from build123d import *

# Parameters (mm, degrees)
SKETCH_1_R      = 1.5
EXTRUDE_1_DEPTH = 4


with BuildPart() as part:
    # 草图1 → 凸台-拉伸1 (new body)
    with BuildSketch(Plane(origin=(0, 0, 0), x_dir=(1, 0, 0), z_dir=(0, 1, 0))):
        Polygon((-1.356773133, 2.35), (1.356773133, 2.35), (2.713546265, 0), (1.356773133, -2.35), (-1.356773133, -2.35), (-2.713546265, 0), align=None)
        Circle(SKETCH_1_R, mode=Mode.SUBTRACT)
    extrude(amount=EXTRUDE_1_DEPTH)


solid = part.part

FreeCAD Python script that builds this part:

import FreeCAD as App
import Part
import Sketcher
Q = App.Units.Quantity

doc = App.newDocument("Part")
body = doc.addObject("PartDesign::Body", "Body")

# Sketch on XZ plane
sketch1 = doc.addObject("Sketcher::SketchObject", "Sketch")
body.addObject(sketch1)
sketch1.AttachmentSupport = (doc.XZ_Plane, [""])
sketch1.MapMode = "FlatFace"
sketch1.addGeometry([
    Part.LineSegment(App.Vector(1.356773, -2.35, 0), App.Vector(-1.356773, -2.35, 0)),  # 0
    Part.LineSegment(App.Vector(-1.356773, -2.35, 0), App.Vector(-2.713546, 0, 0)),  # 1
    Part.LineSegment(App.Vector(-2.713546, 0, 0), App.Vector(-1.356773, 2.35, 0)),  # 2
    Part.LineSegment(App.Vector(-1.356773, 2.35, 0), App.Vector(1.356773, 2.35, 0)),  # 3
    Part.LineSegment(App.Vector(1.356773, 2.35, 0), App.Vector(2.713546, 0, 0)),  # 4
    Part.LineSegment(App.Vector(2.713546, 0, 0), App.Vector(1.356773, -2.35, 0)),  # 5
    Part.Circle(App.Vector(0, 0, 0), App.Vector(0, 0, 1), 1.5),  # 6
], False)
sketch1.addConstraint([
    Sketcher.Constraint("Coincident", 0, 2, 1, 1),
    Sketcher.Constraint("Coincident", 1, 2, 2, 1),
    Sketcher.Constraint("Coincident", 2, 2, 3, 1),
    Sketcher.Constraint("Coincident", 3, 2, 4, 1),
    Sketcher.Constraint("Coincident", 4, 2, 5, 1),
    Sketcher.Constraint("Coincident", 5, 2, 0, 1),
    Sketcher.Constraint("Horizontal", 0),
    Sketcher.Constraint("Horizontal", 3),
    Sketcher.Constraint("Coincident", 6, 3, -1, 1),
    Sketcher.Constraint("Symmetric", 0, 2, 3, 2, -1, 1),
    Sketcher.Constraint("Symmetric", 1, 2, 4, 2, -1, 1),
    Sketcher.Constraint("PointOnObject", 1, 2, -1),
    Sketcher.Constraint("Parallel", 2, 5),
    Sketcher.Constraint("Vertical", 0, 2, 2, 2),
    Sketcher.Constraint("Diameter", 6, 3.0),
    Sketcher.Constraint("Angle", 1, Q("120 deg")),
    Sketcher.Constraint("DistanceY", 0, 2, 2, 2, 4.7),
    Sketcher.Constraint("DistanceX", 0, 2, 0, 1, 2.713546),
])
pad1 = doc.addObject("PartDesign::Pad", "Pad")
body.addObject(pad1)
pad1.Profile = sketch1
pad1.Length = 4
pad1.Reversed = True

doc.recompute()
